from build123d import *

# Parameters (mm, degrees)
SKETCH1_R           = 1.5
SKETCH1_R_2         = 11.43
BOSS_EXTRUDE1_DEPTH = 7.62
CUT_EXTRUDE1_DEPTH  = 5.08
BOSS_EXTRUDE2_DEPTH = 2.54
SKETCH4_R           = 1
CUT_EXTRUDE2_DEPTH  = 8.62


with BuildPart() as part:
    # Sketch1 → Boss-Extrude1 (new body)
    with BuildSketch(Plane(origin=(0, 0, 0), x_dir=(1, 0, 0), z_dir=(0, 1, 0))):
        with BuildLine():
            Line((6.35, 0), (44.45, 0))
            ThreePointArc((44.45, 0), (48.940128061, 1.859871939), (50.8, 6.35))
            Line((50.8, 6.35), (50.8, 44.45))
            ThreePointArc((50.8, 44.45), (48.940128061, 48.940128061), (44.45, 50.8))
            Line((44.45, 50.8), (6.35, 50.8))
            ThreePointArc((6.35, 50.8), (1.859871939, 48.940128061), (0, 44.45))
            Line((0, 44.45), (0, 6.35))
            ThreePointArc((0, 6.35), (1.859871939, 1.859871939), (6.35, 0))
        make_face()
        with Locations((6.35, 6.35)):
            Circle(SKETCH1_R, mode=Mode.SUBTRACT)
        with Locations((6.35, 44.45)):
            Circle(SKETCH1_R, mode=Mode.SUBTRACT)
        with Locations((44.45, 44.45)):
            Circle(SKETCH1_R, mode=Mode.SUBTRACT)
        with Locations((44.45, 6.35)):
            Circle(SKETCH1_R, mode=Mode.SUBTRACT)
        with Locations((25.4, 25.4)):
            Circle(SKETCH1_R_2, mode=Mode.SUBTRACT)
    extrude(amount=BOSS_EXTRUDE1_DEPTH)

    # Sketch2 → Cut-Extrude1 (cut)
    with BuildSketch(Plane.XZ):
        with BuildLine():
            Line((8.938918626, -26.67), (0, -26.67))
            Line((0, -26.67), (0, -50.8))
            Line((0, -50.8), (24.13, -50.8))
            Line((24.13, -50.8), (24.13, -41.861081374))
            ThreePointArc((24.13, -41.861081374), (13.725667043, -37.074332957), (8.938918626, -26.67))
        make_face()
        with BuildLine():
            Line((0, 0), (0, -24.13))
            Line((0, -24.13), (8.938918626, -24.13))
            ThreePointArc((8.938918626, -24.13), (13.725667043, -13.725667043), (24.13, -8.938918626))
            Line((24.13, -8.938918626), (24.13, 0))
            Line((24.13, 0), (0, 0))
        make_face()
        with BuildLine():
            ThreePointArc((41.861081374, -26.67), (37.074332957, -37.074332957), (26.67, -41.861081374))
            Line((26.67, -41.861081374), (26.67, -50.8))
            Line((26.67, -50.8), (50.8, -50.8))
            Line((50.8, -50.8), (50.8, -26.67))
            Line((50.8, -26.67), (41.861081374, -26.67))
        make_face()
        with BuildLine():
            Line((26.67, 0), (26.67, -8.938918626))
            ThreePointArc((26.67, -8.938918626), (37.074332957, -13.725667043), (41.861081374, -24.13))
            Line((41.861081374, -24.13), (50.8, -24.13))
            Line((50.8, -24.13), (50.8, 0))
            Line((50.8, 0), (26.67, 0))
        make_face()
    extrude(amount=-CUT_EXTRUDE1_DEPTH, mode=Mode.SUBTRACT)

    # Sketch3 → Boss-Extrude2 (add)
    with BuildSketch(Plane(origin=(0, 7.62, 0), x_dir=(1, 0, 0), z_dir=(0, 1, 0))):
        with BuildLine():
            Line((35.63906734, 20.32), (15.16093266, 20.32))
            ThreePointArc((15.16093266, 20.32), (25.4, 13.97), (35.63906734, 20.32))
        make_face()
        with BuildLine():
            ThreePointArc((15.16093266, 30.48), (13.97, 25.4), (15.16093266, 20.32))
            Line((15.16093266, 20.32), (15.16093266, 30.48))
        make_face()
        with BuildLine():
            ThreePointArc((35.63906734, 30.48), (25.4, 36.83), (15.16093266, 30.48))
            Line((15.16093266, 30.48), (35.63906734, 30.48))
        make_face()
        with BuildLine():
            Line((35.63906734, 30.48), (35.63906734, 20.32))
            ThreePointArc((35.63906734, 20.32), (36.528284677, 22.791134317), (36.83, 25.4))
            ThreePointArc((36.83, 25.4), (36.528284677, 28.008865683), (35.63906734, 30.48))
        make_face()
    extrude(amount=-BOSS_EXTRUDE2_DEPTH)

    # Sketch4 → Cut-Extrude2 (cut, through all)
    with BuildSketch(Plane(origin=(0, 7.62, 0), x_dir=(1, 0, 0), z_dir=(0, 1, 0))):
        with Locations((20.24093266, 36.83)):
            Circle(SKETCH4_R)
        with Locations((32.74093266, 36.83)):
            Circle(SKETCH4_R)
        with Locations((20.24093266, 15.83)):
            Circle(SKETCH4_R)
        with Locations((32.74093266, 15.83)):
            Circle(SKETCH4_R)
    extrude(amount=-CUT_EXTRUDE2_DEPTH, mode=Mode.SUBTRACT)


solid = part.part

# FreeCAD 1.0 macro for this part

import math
import FreeCAD as App
import Part
import Sketcher
Q = App.Units.Quantity

doc = App.newDocument("Part")
body = doc.addObject("PartDesign::Body", "Body")

# Sketch on XZ plane
sketch1 = doc.addObject("Sketcher::SketchObject", "Sketch")
body.addObject(sketch1)
sketch1.AttachmentSupport = (doc.XZ_Plane, [""])
sketch1.MapMode = "FlatFace"
sketch1.addGeometry(Part.LineSegment(App.Vector(6.3, 0, 0), App.Vector(44.5, 0, 0)), False)
sketch1.addGeometry(Part.ArcOfCircle(Part.Circle(App.Vector(44.5, -6.3, 0), App.Vector(0, 0, 1), 6.3), math.radians(0), math.radians(90)), False)
sketch1.addGeometry(Part.LineSegment(App.Vector(50.8, -6.3, 0), App.Vector(50.8, -44.5, 0)), False)
sketch1.addGeometry(Part.ArcOfCircle(Part.Circle(App.Vector(44.5, -44.5, 0), App.Vector(0, 0, 1), 6.3), math.radians(-90), math.radians(0)), False)
sketch1.addGeometry(Part.LineSegment(App.Vector(44.5, -50.8, 0), App.Vector(6.3, -50.8, 0)), False)
sketch1.addGeometry(Part.ArcOfCircle(Part.Circle(App.Vector(6.3, -44.5, 0), App.Vector(0, 0, 1), 6.3), math.radians(180), math.radians(270)), False)
sketch1.addGeometry(Part.LineSegment(App.Vector(0, -44.5, 0), App.Vector(0, -6.3, 0)), False)
sketch1.addGeometry(Part.ArcOfCircle(Part.Circle(App.Vector(6.3, -6.3, 0), App.Vector(0, 0, 1), 6.3), math.radians(90), math.radians(180)), False)
sketch1.addGeometry(Part.Circle(App.Vector(6.3, -6.3, 0), App.Vector(0, 0, 1), 1.5), False)
sketch1.addGeometry(Part.Circle(App.Vector(25.4, -25.4, 0), App.Vector(0, 0, 1), 11.4), False)
sketch1.addGeometry(Part.Circle(App.Vector(44.5, -6.3, 0), App.Vector(0, 0, 1), 1.5), False)
sketch1.addGeometry(Part.Circle(App.Vector(6.3, -44.5, 0), App.Vector(0, 0, 1), 1.5), False)
sketch1.addGeometry(Part.Circle(App.Vector(44.5, -44.5, 0), App.Vector(0, 0, 1), 1.5), False)
sketch1.addConstraint(Sketcher.Constraint("Tangent", 0, 2, 1, 2))
sketch1.addConstraint(Sketcher.Constraint("Tangent", 1, 1, 2, 1))
sketch1.addConstraint(Sketcher.Constraint("Tangent", 2, 2, 3, 2))
sketch1.addConstraint(Sketcher.Constraint("Tangent", 3, 1, 4, 1))
sketch1.addConstraint(Sketcher.Constraint("Tangent", 4, 2, 5, 2))
sketch1.addConstraint(Sketcher.Constraint("Tangent", 5, 1, 6, 1))
sketch1.addConstraint(Sketcher.Constraint("Tangent", 6, 2, 7, 2))
sketch1.addConstraint(Sketcher.Constraint("Tangent", 7, 1, 0, 1))
sketch1.addConstraint(Sketcher.Constraint("Horizontal", 0))
sketch1.addConstraint(Sketcher.Constraint("Vertical", 2))
sketch1.addConstraint(Sketcher.Constraint("Horizontal", 4))
sketch1.addConstraint(Sketcher.Constraint("Vertical", 6))
sketch1.addConstraint(Sketcher.Constraint("Coincident", 8, 3, 7, 3))
sketch1.addConstraint(Sketcher.Constraint("Coincident", 10, 3, 1, 3))
sketch1.addConstraint(Sketcher.Constraint("Coincident", 11, 3, 5, 3))
sketch1.addConstraint(Sketcher.Constraint("Coincident", 12, 3, 3, 3))
sketch1.addConstraint(Sketcher.Constraint("Equal", 1, 3))
sketch1.addConstraint(Sketcher.Constraint("Equal", 3, 5))
sketch1.addConstraint(Sketcher.Constraint("Equal", 5, 7))
sketch1.addConstraint(Sketcher.Constraint("Equal", 8, 10))
sketch1.addConstraint(Sketcher.Constraint("Equal", 10, 11))
sketch1.addConstraint(Sketcher.Constraint("Equal", 11, 12))
sketch1.addConstraint(Sketcher.Constraint("PointOnObject", 0, 2, -1))
sketch1.addConstraint(Sketcher.Constraint("PointOnObject", 5, 1, -2))
sketch1.addConstraint(Sketcher.Constraint("Equal", 4, 2))
sketch1.addConstraint(Sketcher.Constraint("Diameter", 9, Q("0.9 in")))
sketch1.addConstraint(Sketcher.Constraint("Radius", 1, Q("0.25 in")))
sketch1.addConstraint(Sketcher.Constraint("DistanceX", 0, 1, 0, 2, Q("1.5 in")))
sketch1.addConstraint(Sketcher.Constraint("DistanceX", -1, 1, 9, 3, Q("1 in")))
sketch1.addConstraint(Sketcher.Constraint("DistanceY", 9, 3, -1, 1, Q("1 in")))
sketch1.addConstraint(Sketcher.Constraint("Diameter", 8, Q("3 mm")))
pad1 = doc.addObject("PartDesign::Pad", "Pad")
body.addObject(pad1)
pad1.Profile = sketch1
pad1.Length = Q("0.3 in")
pad1.Reversed = True

# Sketch on XZ plane
sketch2 = doc.addObject("Sketcher::SketchObject", "Sketch001")
body.addObject(sketch2)
sketch2.AttachmentSupport = (doc.XZ_Plane, [""])
sketch2.MapMode = "FlatFace"
sketch2.addGeometry(Part.LineSegment(App.Vector(9, -27, 0), App.Vector(0, -27, 0)), False)
sketch2.addGeometry(Part.LineSegment(App.Vector(0, -27, 0), App.Vector(0, -51, 0)), False)
sketch2.addGeometry(Part.LineSegment(App.Vector(0, -51, 0), App.Vector(24, -51, 0)), False)
sketch2.addGeometry(Part.LineSegment(App.Vector(24, -51, 0), App.Vector(24, -42, 0)), False)
sketch2.addGeometry(Part.ArcOfCircle(Part.Circle(App.Vector(25, -25, 0), App.Vector(0, 0, 1), 17), math.radians(-176), math.radians(-94)), False)
sketch2.addGeometry(Part.LineSegment(App.Vector(0, 0, 0), App.Vector(0, -24, 0)), False)
sketch2.addGeometry(Part.LineSegment(App.Vector(0, -24, 0), App.Vector(9, -24, 0)), False)
sketch2.addGeometry(Part.ArcOfCircle(Part.Circle(App.Vector(25, -25, 0), App.Vector(0, 0, 1), 17), math.radians(94), math.radians(176)), False)
sketch2.addGeometry(Part.LineSegment(App.Vector(24, -9, 0), App.Vector(24, 0, 0)), False)
sketch2.addGeometry(Part.LineSegment(App.Vector(24, 0, 0), App.Vector(0, 0, 0)), False)
sketch2.addGeometry(Part.ArcOfCircle(Part.Circle(App.Vector(25, -25, 0), App.Vector(0, 0, 1), 17), math.radians(-86), math.radians(-4)), False)
sketch2.addGeometry(Part.LineSegment(App.Vector(27, -42, 0), App.Vector(27, -51, 0)), False)
sketch2.addGeometry(Part.LineSegment(App.Vector(27, -51, 0), App.Vector(51, -51, 0)), False)
sketch2.addGeometry(Part.LineSegment(App.Vector(51, -51, 0), App.Vector(51, -27, 0)), False)
sketch2.addGeometry(Part.LineSegment(App.Vector(51, -27, 0), App.Vector(42, -27, 0)), False)
sketch2.addGeometry(Part.LineSegment(App.Vector(27, 0, 0), App.Vector(27, -9, 0)), False)
sketch2.addGeometry(Part.ArcOfCircle(Part.Circle(App.Vector(25, -25, 0), App.Vector(0, 0, 1), 17), math.radians(4), math.radians(86)), False)
sketch2.addGeometry(Part.LineSegment(App.Vector(42, -24, 0), App.Vector(51, -24, 0)), False)
sketch2.addGeometry(Part.LineSegment(App.Vector(51, -24, 0), App.Vector(51, 0, 0)), False)
sketch2.addGeometry(Part.LineSegment(App.Vector(51, 0, 0), App.Vector(27, 0, 0)), False)
sketch2.addConstraint(Sketcher.Constraint("Coincident", 0, 2, 1, 1))
sketch2.addConstraint(Sketcher.Constraint("Coincident", 1, 2, 2, 1))
sketch2.addConstraint(Sketcher.Constraint("Coincident", 2, 2, 3, 1))
sketch2.addConstraint(Sketcher.Constraint("Coincident", 3, 2, 4, 2))
sketch2.addConstraint(Sketcher.Constraint("Coincident", 4, 1, 0, 1))
sketch2.addConstraint(Sketcher.Constraint("Coincident", 5, 2, 6, 1))
sketch2.addConstraint(Sketcher.Constraint("Coincident", 6, 2, 7, 2))
sketch2.addConstraint(Sketcher.Constraint("Coincident", 7, 1, 8, 1))
sketch2.addConstraint(Sketcher.Constraint("Coincident", 8, 2, 9, 1))
sketch2.addConstraint(Sketcher.Constraint("Coincident", 9, 2, 5, 1))
sketch2.addConstraint(Sketcher.Constraint("Coincident", 10, 1, 11, 1))
sketch2.addConstraint(Sketcher.Constraint("Coincident", 11, 2, 12, 1))
sketch2.addConstraint(Sketcher.Constraint("Coincident", 12, 2, 13, 1))
sketch2.addConstraint(Sketcher.Constraint("Coincident", 13, 2, 14, 1))
sketch2.addConstraint(Sketcher.Constraint("Coincident", 14, 2, 10, 2))
sketch2.addConstraint(Sketcher.Constraint("Coincident", 15, 2, 16, 2))
sketch2.addConstraint(Sketcher.Constraint("Coincident", 16, 1, 17, 1))
sketch2.addConstraint(Sketcher.Constraint("Coincident", 17, 2, 18, 1))
sketch2.addConstraint(Sketcher.Constraint("Coincident", 18, 2, 19, 1))
sketch2.addConstraint(Sketcher.Constraint("Coincident", 19, 2, 15, 1))
sketch2.addConstraint(Sketcher.Constraint("Horizontal", 0))
sketch2.addConstraint(Sketcher.Constraint("Vertical", 1))
sketch2.addConstraint(Sketcher.Constraint("Horizontal", 2))
sketch2.addConstraint(Sketcher.Constraint("Vertical", 3))
sketch2.addConstraint(Sketcher.Constraint("Vertical", 5))
sketch2.addConstraint(Sketcher.Constraint("Horizontal", 6))
sketch2.addConstraint(Sketcher.Constraint("Vertical", 8))
sketch2.addConstraint(Sketcher.Constraint("Horizontal", 9))
sketch2.addConstraint(Sketcher.Constraint("Vertical", 11))
sketch2.addConstraint(Sketcher.Constraint("Horizontal", 12))
sketch2.addConstraint(Sketcher.Constraint("Vertical", 13))
sketch2.addConstraint(Sketcher.Constraint("Horizontal", 14))
sketch2.addConstraint(Sketcher.Constraint("Vertical", 15))
sketch2.addConstraint(Sketcher.Constraint("Horizontal", 17))
sketch2.addConstraint(Sketcher.Constraint("Vertical", 18))
sketch2.addConstraint(Sketcher.Constraint("Horizontal", 19))
sketch2.addConstraint(Sketcher.Constraint("Coincident", 9, 2, -1, 1))
sketch2.addConstraint(Sketcher.Constraint("Coincident", 7, 3, 4, 3))
sketch2.addConstraint(Sketcher.Constraint("Coincident", 10, 3, 4, 3))
sketch2.addConstraint(Sketcher.Constraint("Coincident", 16, 3, 4, 3))
sketch2.addConstraint(Sketcher.Constraint("Equal", 4, 7))
sketch2.addConstraint(Sketcher.Constraint("Equal", 7, 10))
sketch2.addConstraint(Sketcher.Constraint("Equal", 10, 16))
sketch2.addConstraint(Sketcher.Constraint("PointOnObject", 0, 2, -2))
sketch2.addConstraint(Sketcher.Constraint("PointOnObject", 18, 2, -1))
sketch2.addConstraint(Sketcher.Constraint("Horizontal", 3, 2, 10, 1))
sketch2.addConstraint(Sketcher.Constraint("Horizontal", 2, 2, 11, 2))
sketch2.addConstraint(Sketcher.Constraint("Horizontal", 4, 1, 13, 2))
sketch2.addConstraint(Sketcher.Constraint("Horizontal", 7, 1, 15, 2))
sketch2.addConstraint(Sketcher.Constraint("Horizontal", 6, 2, 16, 1))
sketch2.addConstraint(Sketcher.Constraint("Vertical", 4, 1, 6, 2))
sketch2.addConstraint(Sketcher.Constraint("Vertical", 3, 2, 7, 1))
sketch2.addConstraint(Sketcher.Constraint("Vertical", 13, 2, 17, 2))
sketch2.addConstraint(Sketcher.Constraint("Equal", 9, 12))
sketch2.addConstraint(Sketcher.Constraint("Equal", 19, 1))
sketch2.addConstraint(Sketcher.Constraint("Equal", 17, 3))
sketch2.addConstraint(Sketcher.Constraint("Equal", 1, 5))
sketch2.addConstraint(Sketcher.Constraint("Radius", 4, Q("0.65 in")))
sketch2.addConstraint(Sketcher.Constraint("DistanceX", -1, 1, 4, 3, Q("1 in")))
sketch2.addConstraint(Sketcher.Constraint("DistanceX", 2, 1, 2, 2, Q("0.95 in")))
pocket1 = doc.addObject("PartDesign::Pocket", "Pocket")
body.addObject(pocket1)
pocket1.Profile = sketch2
pocket1.Length = Q("0.2 in")

# Sketch on XZ plane
sketch3 = doc.addObject("Sketcher::SketchObject", "Sketch002")
body.addObject(sketch3)
sketch3.AttachmentSupport = (doc.XZ_Plane, [""])
sketch3.MapMode = "FlatFace"
sketch3.AttachmentOffset = App.Placement(App.Vector(0, 0, -0.3 * 25.4), App.Rotation())
sketch3.addGeometry(Part.LineSegment(App.Vector(36, -20, 0), App.Vector(15, -20, 0)), False)
sketch3.addGeometry(Part.ArcOfCircle(Part.Circle(App.Vector(25, -25, 0), App.Vector(0, 0, 1), 11), math.radians(26), math.radians(154)), False)
sketch3.addGeometry(Part.ArcOfCircle(Part.Circle(App.Vector(25, -25, 0), App.Vector(0, 0, 1), 11), math.radians(154), math.radians(206)), False)
sketch3.addGeometry(Part.LineSegment(App.Vector(15, -20, 0), App.Vector(15, -30, 0)), False)
sketch3.addGeometry(Part.ArcOfCircle(Part.Circle(App.Vector(25, -25, 0), App.Vector(0, 0, 1), 11), math.radians(-154), math.radians(-26)), False)
sketch3.addGeometry(Part.LineSegment(App.Vector(15, -30, 0), App.Vector(36, -30, 0)), False)
sketch3.addGeometry(Part.LineSegment(App.Vector(36, -30, 0), App.Vector(36, -20, 0)), False)
sketch3.addGeometry(Part.ArcOfCircle(Part.Circle(App.Vector(25, -25, 0), App.Vector(0, 0, 1), 11), math.radians(0), math.radians(26)), False)
sketch3.addGeometry(Part.ArcOfCircle(Part.Circle(App.Vector(25, -25, 0), App.Vector(0, 0, 1), 11), math.radians(-26), math.radians(0)), False)
sketch3.addConstraint(Sketcher.Constraint("Coincident", 0, 1, 1, 1))
sketch3.addConstraint(Sketcher.Constraint("Coincident", 1, 2, 0, 2))
sketch3.addConstraint(Sketcher.Constraint("Coincident", 2, 1, 3, 1))
sketch3.addConstraint(Sketcher.Constraint("Coincident", 3, 2, 2, 2))
sketch3.addConstraint(Sketcher.Constraint("Coincident", 4, 1, 5, 1))
sketch3.addConstraint(Sketcher.Constraint("Coincident", 5, 2, 4, 2))
sketch3.addConstraint(Sketcher.Constraint("Coincident", 6, 2, 7, 2))
sketch3.addConstraint(Sketcher.Constraint("Tangent", 7, 1, 8, 2))
sketch3.addConstraint(Sketcher.Constraint("Coincident", 8, 1, 6, 1))
sketch3.addConstraint(Sketcher.Constraint("Horizontal", 0))
sketch3.addConstraint(Sketcher.Constraint("Vertical", 3))
sketch3.addConstraint(Sketcher.Constraint("Horizontal", 5))
sketch3.addConstraint(Sketcher.Constraint("Vertical", 6))
sketch3.addConstraint(Sketcher.Constraint("Coincident", 2, 3, 1, 3))
sketch3.addConstraint(Sketcher.Constraint("Coincident", 4, 3, 1, 3))
sketch3.addConstraint(Sketcher.Constraint("Coincident", 7, 3, 1, 3))
sketch3.addConstraint(Sketcher.Constraint("Coincident", 2, 1, 1, 2))
sketch3.addConstraint(Sketcher.Constraint("Coincident", 4, 1, 3, 2))
sketch3.addConstraint(Sketcher.Constraint("Coincident", 6, 2, 0, 1))
sketch3.addConstraint(Sketcher.Constraint("Equal", 7, 8))
sketch3.addConstraint(Sketcher.Constraint("Horizontal", 8, 3, 7, 1))
sketch3.addConstraint(Sketcher.Constraint("Radius", 1, Q("0.45 in")))
sketch3.addConstraint(Sketcher.Constraint("DistanceY", 3, 2, 3, 1, Q("0.4 in")))
sketch3.addConstraint(Sketcher.Constraint("DistanceX", -1, 1, 1, 3, Q("1 in")))
sketch3.addConstraint(Sketcher.Constraint("DistanceY", 1, 3, -1, 1, Q("1 in")))
pad2 = doc.addObject("PartDesign::Pad", "Pad001")
body.addObject(pad2)
pad2.Profile = sketch3
pad2.Length = Q("0.1 in")

# Sketch on XZ plane
sketch4 = doc.addObject("Sketcher::SketchObject", "Sketch003")
body.addObject(sketch4)
sketch4.AttachmentSupport = (doc.XZ_Plane, [""])
sketch4.MapMode = "FlatFace"
sketch4.AttachmentOffset = App.Placement(App.Vector(0, 0, -0.3 * 25.4), App.Rotation())
sketch4.addGeometry(Part.Circle(App.Vector(20.2, -36.8, 0), App.Vector(0, 0, 1), 1), False)
sketch4.addGeometry(Part.Circle(App.Vector(32.7, -36.8, 0), App.Vector(0, 0, 1), 1), False)
sketch4.addGeometry(Part.Circle(App.Vector(20.2, -15.8, 0), App.Vector(0, 0, 1), 1), False)
sketch4.addGeometry(Part.Circle(App.Vector(32.7, -15.8, 0), App.Vector(0, 0, 1), 1), False)
sketch4.addConstraint(Sketcher.Constraint("Equal", 0, 1))
sketch4.addConstraint(Sketcher.Constraint("Equal", 1, 2))
sketch4.addConstraint(Sketcher.Constraint("Equal", 2, 3))
sketch4.addConstraint(Sketcher.Constraint("Horizontal", 0, 3, 1, 3))
sketch4.addConstraint(Sketcher.Constraint("Horizontal", 2, 3, 3, 3))
sketch4.addConstraint(Sketcher.Constraint("Vertical", 0, 3, 2, 3))
sketch4.addConstraint(Sketcher.Constraint("Vertical", 1, 3, 3, 3))
sketch4.addConstraint(Sketcher.Constraint("Diameter", 0, Q("2 mm")))
sketch4.addConstraint(Sketcher.Constraint("DistanceY", 0, 3, -1, 1, Q("1.45 in")))
sketch4.addConstraint(Sketcher.Constraint("DistanceY", 2, 3, -1, 1, Q("15.83 mm")))
sketch4.addConstraint(Sketcher.Constraint("DistanceX", 0, 3, 1, 3, Q("12.5 mm")))
sketch4.addConstraint(Sketcher.Constraint("DistanceX", -1, 1, 0, 3, Q("20.240933 mm")))
pocket2 = doc.addObject("PartDesign::Pocket", "Pocket001")
body.addObject(pocket2)
pocket2.Profile = sketch4
pocket2.Type = "ThroughAll"
pocket2.Reversed = True

doc.recompute()
